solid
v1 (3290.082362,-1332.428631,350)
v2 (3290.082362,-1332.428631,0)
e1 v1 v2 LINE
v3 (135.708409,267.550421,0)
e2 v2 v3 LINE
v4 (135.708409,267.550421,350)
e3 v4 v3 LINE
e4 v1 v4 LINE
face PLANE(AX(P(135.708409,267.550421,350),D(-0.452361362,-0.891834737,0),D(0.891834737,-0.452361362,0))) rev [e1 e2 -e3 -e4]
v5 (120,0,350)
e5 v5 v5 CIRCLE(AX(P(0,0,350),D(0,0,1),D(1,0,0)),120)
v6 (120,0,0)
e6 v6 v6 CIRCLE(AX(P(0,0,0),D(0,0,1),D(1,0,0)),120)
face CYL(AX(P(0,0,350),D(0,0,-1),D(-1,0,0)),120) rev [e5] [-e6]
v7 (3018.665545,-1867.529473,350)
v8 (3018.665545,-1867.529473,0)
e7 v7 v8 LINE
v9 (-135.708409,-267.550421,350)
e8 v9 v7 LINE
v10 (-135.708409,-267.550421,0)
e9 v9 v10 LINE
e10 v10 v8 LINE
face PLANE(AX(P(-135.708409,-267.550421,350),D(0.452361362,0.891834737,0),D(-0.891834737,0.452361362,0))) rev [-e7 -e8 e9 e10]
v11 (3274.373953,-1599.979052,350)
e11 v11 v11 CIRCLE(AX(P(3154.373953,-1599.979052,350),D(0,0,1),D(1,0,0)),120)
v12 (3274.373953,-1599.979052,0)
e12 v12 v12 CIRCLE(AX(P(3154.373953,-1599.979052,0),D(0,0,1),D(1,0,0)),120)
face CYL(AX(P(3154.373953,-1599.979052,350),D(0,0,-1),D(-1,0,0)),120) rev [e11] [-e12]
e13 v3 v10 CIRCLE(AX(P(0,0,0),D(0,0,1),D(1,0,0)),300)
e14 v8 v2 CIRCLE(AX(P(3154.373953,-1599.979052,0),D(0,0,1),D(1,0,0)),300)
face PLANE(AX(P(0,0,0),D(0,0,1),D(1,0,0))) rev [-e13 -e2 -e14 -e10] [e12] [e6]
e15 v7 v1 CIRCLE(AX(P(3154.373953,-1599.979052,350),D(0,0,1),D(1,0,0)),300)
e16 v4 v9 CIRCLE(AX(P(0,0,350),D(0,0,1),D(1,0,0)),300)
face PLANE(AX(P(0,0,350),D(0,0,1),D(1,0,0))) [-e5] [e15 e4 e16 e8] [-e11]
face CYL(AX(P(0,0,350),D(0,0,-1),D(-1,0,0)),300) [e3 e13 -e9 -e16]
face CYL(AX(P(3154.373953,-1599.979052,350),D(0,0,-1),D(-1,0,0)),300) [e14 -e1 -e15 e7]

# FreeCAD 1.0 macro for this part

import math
import FreeCAD as App
import Part
import Sketcher

doc = App.newDocument("Part")
body = doc.addObject("PartDesign::Body", "Body")

# Sketch on XY plane
sketch1 = body.newObject("Sketcher::SketchObject", "Sketch")
sketch1.AttachmentSupport = (doc.getObject("XY_Plane"), [""])
sketch1.MapMode = "FlatFace"
sketch1.addGeometry(Part.LineSegment(App.Vector(-135.708409, -267.550421, 0), App.Vector(3018.665545, -1867.529473, 0)), False)
sketch1.addGeometry(Part.ArcOfCircle(Part.Circle(App.Vector(3154.373953, -1599.979052, 0), App.Vector(0, 0, 1), 300), math.radians(-116.895288), math.radians(63.104712)), False)
sketch1.addGeometry(Part.LineSegment(App.Vector(3290.082362, -1332.428631, 0), App.Vector(135.708409, 267.550421, 0)), False)
sketch1.addGeometry(Part.ArcOfCircle(Part.Circle(App.Vector(0, 0, 0), App.Vector(0, 0, 1), 300), math.radians(63.104712), math.radians(243.104712)), False)
sketch1.addGeometry(Part.Circle(App.Vector(3154.373953, -1599.979052, 0), App.Vector(0, 0, 1), 120), False)
sketch1.addGeometry(Part.Circle(App.Vector(0, 0, 0), App.Vector(0, 0, 1), 120), False)
sketch1.addConstraint(Sketcher.Constraint("Tangent", 0, 2, 1, 1))
sketch1.addConstraint(Sketcher.Constraint("Tangent", 1, 2, 2, 1))
sketch1.addConstraint(Sketcher.Constraint("Tangent", 2, 2, 3, 1))
sketch1.addConstraint(Sketcher.Constraint("Tangent", 3, 2, 0, 1))
sketch1.addConstraint(Sketcher.Constraint("Coincident", 3, 3, -1, 1))
sketch1.addConstraint(Sketcher.Constraint("Coincident", 5, 3, -1, 1))
sketch1.addConstraint(Sketcher.Constraint("Coincident", 4, 3, 1, 3))
sketch1.addConstraint(Sketcher.Constraint("Equal", 1, 3))
sketch1.addConstraint(Sketcher.Constraint("Equal", 4, 5))
sketch1.addConstraint(Sketcher.Constraint("Diameter", 4, 240.0))
sketch1.addConstraint(Sketcher.Constraint("Radius", 1, 300.0))
sketch1.addConstraint(Sketcher.Constraint("Distance", 0, 3536.948968))
sketch1.addConstraint(Sketcher.Constraint("DistanceY", 1, 3, -1, 1, 1599.979052))
pad1 = body.newObject("PartDesign::Pad", "Pad")
pad1.Profile = sketch1
pad1.Length = 350

doc.recompute()
